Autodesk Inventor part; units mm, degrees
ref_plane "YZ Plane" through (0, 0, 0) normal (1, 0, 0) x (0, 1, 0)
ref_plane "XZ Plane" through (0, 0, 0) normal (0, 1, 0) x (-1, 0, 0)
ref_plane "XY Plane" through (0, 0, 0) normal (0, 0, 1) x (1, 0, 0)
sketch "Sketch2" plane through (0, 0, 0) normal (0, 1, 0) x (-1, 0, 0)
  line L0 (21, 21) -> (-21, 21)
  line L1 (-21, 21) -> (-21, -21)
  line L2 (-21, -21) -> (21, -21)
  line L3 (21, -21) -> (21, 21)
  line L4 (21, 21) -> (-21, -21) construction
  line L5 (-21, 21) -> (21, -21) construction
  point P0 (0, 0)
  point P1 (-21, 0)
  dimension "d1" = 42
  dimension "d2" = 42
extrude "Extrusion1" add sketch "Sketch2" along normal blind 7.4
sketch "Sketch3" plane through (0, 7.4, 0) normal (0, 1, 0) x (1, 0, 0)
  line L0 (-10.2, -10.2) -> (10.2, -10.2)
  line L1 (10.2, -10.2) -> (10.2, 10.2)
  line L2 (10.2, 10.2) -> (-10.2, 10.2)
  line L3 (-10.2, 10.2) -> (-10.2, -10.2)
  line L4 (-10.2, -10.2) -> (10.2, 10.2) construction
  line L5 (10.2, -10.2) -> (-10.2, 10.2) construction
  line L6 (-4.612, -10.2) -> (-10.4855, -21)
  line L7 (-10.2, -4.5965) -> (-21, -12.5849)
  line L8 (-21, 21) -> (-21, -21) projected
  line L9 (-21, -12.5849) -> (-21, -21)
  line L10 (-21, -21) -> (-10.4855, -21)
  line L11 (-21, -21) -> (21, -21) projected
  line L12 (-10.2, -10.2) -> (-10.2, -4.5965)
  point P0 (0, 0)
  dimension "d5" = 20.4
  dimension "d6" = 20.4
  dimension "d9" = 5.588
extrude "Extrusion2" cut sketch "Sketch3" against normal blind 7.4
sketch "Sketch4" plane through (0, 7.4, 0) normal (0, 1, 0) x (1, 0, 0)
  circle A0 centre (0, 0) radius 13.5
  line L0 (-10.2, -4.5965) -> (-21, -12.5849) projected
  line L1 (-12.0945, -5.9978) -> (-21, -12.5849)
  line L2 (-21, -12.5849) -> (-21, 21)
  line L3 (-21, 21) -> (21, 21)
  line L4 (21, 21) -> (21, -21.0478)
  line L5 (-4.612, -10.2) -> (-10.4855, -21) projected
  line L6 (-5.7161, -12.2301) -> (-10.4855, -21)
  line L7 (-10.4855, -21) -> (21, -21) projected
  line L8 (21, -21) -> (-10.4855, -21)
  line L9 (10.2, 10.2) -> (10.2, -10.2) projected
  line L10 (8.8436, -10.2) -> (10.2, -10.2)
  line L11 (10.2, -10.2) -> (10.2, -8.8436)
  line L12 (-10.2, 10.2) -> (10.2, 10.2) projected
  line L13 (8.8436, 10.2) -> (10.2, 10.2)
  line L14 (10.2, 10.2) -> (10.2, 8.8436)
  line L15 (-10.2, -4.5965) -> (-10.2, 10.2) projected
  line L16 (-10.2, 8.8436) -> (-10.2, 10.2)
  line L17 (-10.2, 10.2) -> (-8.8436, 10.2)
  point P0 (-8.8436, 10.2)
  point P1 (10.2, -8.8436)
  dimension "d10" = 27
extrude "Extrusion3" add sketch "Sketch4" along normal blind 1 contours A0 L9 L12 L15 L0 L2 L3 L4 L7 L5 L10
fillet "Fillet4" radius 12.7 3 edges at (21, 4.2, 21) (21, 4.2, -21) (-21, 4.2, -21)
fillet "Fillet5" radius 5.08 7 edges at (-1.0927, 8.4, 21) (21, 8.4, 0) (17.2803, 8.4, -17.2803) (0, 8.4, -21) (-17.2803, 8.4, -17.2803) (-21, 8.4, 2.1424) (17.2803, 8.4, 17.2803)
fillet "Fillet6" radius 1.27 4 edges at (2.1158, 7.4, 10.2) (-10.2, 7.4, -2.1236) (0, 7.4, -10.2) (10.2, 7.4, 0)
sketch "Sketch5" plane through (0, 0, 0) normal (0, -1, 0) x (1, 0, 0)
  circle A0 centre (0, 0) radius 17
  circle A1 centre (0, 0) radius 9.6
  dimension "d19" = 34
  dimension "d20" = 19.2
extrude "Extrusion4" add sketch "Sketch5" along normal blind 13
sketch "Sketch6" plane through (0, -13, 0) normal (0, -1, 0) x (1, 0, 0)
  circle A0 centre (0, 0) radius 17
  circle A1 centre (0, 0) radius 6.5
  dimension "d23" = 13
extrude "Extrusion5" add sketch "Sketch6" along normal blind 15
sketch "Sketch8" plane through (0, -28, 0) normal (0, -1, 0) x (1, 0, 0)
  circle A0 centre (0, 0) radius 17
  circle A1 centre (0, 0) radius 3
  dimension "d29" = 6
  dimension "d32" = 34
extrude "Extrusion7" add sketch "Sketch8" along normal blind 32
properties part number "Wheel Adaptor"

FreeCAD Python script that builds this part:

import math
import FreeCAD as App
import Part
import Sketcher
from FreeCAD import Vector
Q = App.Units.Quantity


def edges_at(feature, points):
    """Names of the edges that pass closest to the given points."""
    edges = feature.Shape.Edges
    near = lambda p: min(range(len(edges)), key=lambda i: edges[i].distToShape(Part.Vertex(*p))[0])
    return sorted({f"Edge{near(p) + 1}" for p in points})

doc = App.newDocument("Part")
params = doc.addObject("Spreadsheet::Sheet", "Params")
for row, (alias, value) in enumerate([
    ("sketch1_width", "42 mm"),
    ("pad1_length", "7.4 mm"),
    ("sketch2_width", "20.4 mm"),
    ("pocket1_length", "7.4 mm"),
    ("sketch3_radius", "13.5 mm"),
    ("sketch3_width", "42 mm"),
    ("pad2_length", "1 mm"),
    ("fillet_radius", "12.7 mm"),
    ("fillet2_radius", "5.08 mm"),
    ("fillet3_radius", "1.27 mm"),
    ("sketch4_diameter", "34 mm"),
    ("sketch4_diameter2", "19.2 mm"),
    ("pad3_length", "13 mm"),
    ("sketch5_diameter", "13 mm"),
    ("sketch5_diameter2", "34 mm"),
    ("pad4_length", "15 mm"),
    ("sketch6_diameter", "34 mm"),
    ("sketch6_diameter2", "6 mm"),
    ("pad5_length", "32 mm"),
], start=1):
    params.set(f"A{row}", alias)
    params.set(f"B{row}", "=" + value)
    params.setAlias(f"B{row}", alias)

body = doc.addObject("PartDesign::Body", "Body")

# Sketch on XZ plane
sketch1 = doc.addObject("Sketcher::SketchObject", "Sketch")
body.addObject(sketch1)
sketch1.AttachmentSupport = (doc.XZ_Plane, [""])
sketch1.MapMode = "FlatFace"
sketch1.addGeometry([
    Part.LineSegment(Vector(-21, -21, 0), Vector(-21, 21, 0)),
    Part.LineSegment(Vector(-21, 21, 0), Vector(21, 21, 0)),
    Part.LineSegment(Vector(21, 21, 0), Vector(21, -21, 0)),
    Part.LineSegment(Vector(21, -21, 0), Vector(-21, -21, 0)),
], False)
sketch1.addConstraint([
    Sketcher.Constraint("Coincident", 0, 2, 1, 1),
    Sketcher.Constraint("Coincident", 1, 2, 2, 1),
    Sketcher.Constraint("Coincident", 2, 2, 3, 1),
    Sketcher.Constraint("Coincident", 3, 2, 0, 1),
    Sketcher.Constraint("Vertical", 0),
    Sketcher.Constraint("Horizontal", 1),
    Sketcher.Constraint("Vertical", 2),
    Sketcher.Constraint("Horizontal", 3),
    Sketcher.Constraint("Symmetric", 0, 2, 2, 2, -1, 1),
    Sketcher.Constraint("Equal", 3, 0),
    Sketcher.Constraint("DistanceX", 1, 1, 1, 2, 42.0),
])
sketch1.setExpression("Constraints[10]", "Params.sketch1_width")
pad1 = doc.addObject("PartDesign::Pad", "Pad")
body.addObject(pad1)
pad1.Profile = sketch1
pad1.setExpression("Length", "Params.pad1_length")
pad1.Reversed = True

# Sketch on XZ plane
sketch2 = doc.addObject("Sketcher::SketchObject", "Sketch001")
body.addObject(sketch2)
sketch2.AttachmentSupport = (doc.XZ_Plane, [""])
sketch2.MapMode = "FlatFace"
sketch2.AttachmentOffset = App.Placement(Vector(0, 0, -7.4), App.Rotation())
sketch2.addGeometry([
    Part.LineSegment(Vector(-10.2, -10.2, 0), Vector(-10.2, 4.5965, 0)),  # 0
    Part.LineSegment(Vector(-10.2, 4.5965, 0), Vector(-21, 12.5849, 0)),  # 1
    Part.LineSegment(Vector(-21, 12.5849, 0), Vector(-21, 21, 0)),  # 2
    Part.LineSegment(Vector(-21, 21, 0), Vector(-10.4855, 21, 0)),  # 3
    Part.LineSegment(Vector(-10.4855, 21, 0), Vector(-4.612, 10.2, 0)),  # 4
    Part.LineSegment(Vector(-4.612, 10.2, 0), Vector(10.2, 10.2, 0)),  # 5
    Part.LineSegment(Vector(10.2, 10.2, 0), Vector(10.2, -10.2, 0)),  # 6
    Part.LineSegment(Vector(10.2, -10.2, 0), Vector(-10.2, -10.2, 0)),  # 7
], False)
sketch2.addConstraint([
    Sketcher.Constraint("Coincident", 0, 2, 1, 1),
    Sketcher.Constraint("Coincident", 1, 2, 2, 1),
    Sketcher.Constraint("Coincident", 2, 2, 3, 1),
    Sketcher.Constraint("Coincident", 3, 2, 4, 1),
    Sketcher.Constraint("Coincident", 4, 2, 5, 1),
    Sketcher.Constraint("Coincident", 5, 2, 6, 1),
    Sketcher.Constraint("Coincident", 6, 2, 7, 1),
    Sketcher.Constraint("Coincident", 7, 2, 0, 1),
    Sketcher.Constraint("Vertical", 0),
    Sketcher.Constraint("Vertical", 2),
    Sketcher.Constraint("Horizontal", 3),
    Sketcher.Constraint("Horizontal", 5),
    Sketcher.Constraint("Vertical", 6),
    Sketcher.Constraint("Horizontal", 7),
    Sketcher.Constraint("Symmetric", 5, 2, 7, 2, -1, 1),
    Sketcher.Constraint("Equal", 7, 6),
    Sketcher.Constraint("DistanceX", 7, 2, 7, 1, 20.4),
    Sketcher.Constraint("DistanceX", 1, 2, -1, 1, 21.0),
    Sketcher.Constraint("DistanceY", -1, 1, 2, 2, 21.0),
    Sketcher.Constraint("DistanceX", 0, 2, 4, 2, 5.588),
    Sketcher.Constraint("Angle", 1, Q("143.511 deg")),
    Sketcher.Constraint("Angle", 4, Q("-61.4608 deg")),
    Sketcher.Constraint("DistanceY", 2, 1, 2, 2, 8.415),
])
sketch2.setExpression("Constraints[16]", "Params.sketch2_width")
pocket1 = doc.addObject("PartDesign::Pocket", "Pocket")
body.addObject(pocket1)
pocket1.Profile = sketch2
pocket1.setExpression("Length", "Params.pocket1_length")
pocket1.Reversed = True

# Sketch on XZ plane
sketch3 = doc.addObject("Sketcher::SketchObject", "Sketch002")
body.addObject(sketch3)
sketch3.AttachmentSupport = (doc.XZ_Plane, [""])
sketch3.MapMode = "FlatFace"
sketch3.AttachmentOffset = App.Placement(Vector(0, 0, -7.4), App.Rotation())
sketch3.addGeometry([
    Part.ArcOfCircle(Part.Circle(Vector(0, 0, 0), Vector(0, 0, 1), 13.5), math.radians(-40.925929), math.radians(40.925929)),  # 0
    Part.LineSegment(Vector(10.2, 8.8436, 0), Vector(10.2, 10.2, 0)),  # 1
    Part.LineSegment(Vector(10.2, 10.2, 0), Vector(8.8436, 10.2, 0)),  # 2
    Part.ArcOfCircle(Part.Circle(Vector(0, 0, 0), Vector(0, 0, 1), 13.5), math.radians(49.074071), math.radians(115.05043)),  # 3
    Part.LineSegment(Vector(-5.716065, 12.230119, 0), Vector(-10.4855, 21, 0)),  # 4
    Part.LineSegment(Vector(-10.4855, 21, 0), Vector(21, 21, 0)),  # 5
    Part.LineSegment(Vector(21, 21, 0), Vector(21, -21, 0)),  # 6
    Part.LineSegment(Vector(21, -21, 0), Vector(-21, -21, 0)),  # 7
    Part.LineSegment(Vector(-21, -21, 0), Vector(-21, 12.5849, 0)),  # 8
    Part.LineSegment(Vector(-21, 12.5849, 0), Vector(-12.094501, 5.997799, 0)),  # 9
    Part.ArcOfCircle(Part.Circle(Vector(0, 0, 0), Vector(0, 0, 1), 13.5), math.radians(153.622664), math.radians(220.925929)),  # 10
    Part.LineSegment(Vector(-10.2, -8.8436, 0), Vector(-10.2, -10.2, 0)),  # 11
    Part.LineSegment(Vector(-10.2, -10.2, 0), Vector(-8.8436, -10.2, 0)),  # 12
    Part.ArcOfCircle(Part.Circle(Vector(0, 0, 0), Vector(0, 0, 1), 13.5), math.radians(-130.925929), math.radians(-49.074071)),  # 13
    Part.LineSegment(Vector(8.8436, -10.2, 0), Vector(10.2, -10.2, 0)),  # 14
    Part.LineSegment(Vector(10.2, -10.2, 0), Vector(10.2, -8.8436, 0)),  # 15
], False)
sketch3.addConstraint([
    Sketcher.Constraint("Coincident", 0, 2, 1, 1),
    Sketcher.Constraint("Coincident", 1, 2, 2, 1),
    Sketcher.Constraint("Coincident", 2, 2, 3, 1),
    Sketcher.Constraint("Coincident", 3, 2, 4, 1),
    Sketcher.Constraint("Coincident", 4, 2, 5, 1),
    Sketcher.Constraint("Coincident", 5, 2, 6, 1),
    Sketcher.Constraint("Coincident", 6, 2, 7, 1),
    Sketcher.Constraint("Coincident", 7, 2, 8, 1),
    Sketcher.Constraint("Coincident", 8, 2, 9, 1),
    Sketcher.Constraint("Coincident", 9, 2, 10, 1),
    Sketcher.Constraint("Coincident", 10, 2, 11, 1),
    Sketcher.Constraint("Coincident", 11, 2, 12, 1),
    Sketcher.Constraint("Coincident", 12, 2, 13, 1),
    Sketcher.Constraint("Coincident", 13, 2, 14, 1),
    Sketcher.Constraint("Coincident", 14, 2, 15, 1),
    Sketcher.Constraint("Coincident", 15, 2, 0, 1),
    Sketcher.Constraint("Vertical", 1),
    Sketcher.Constraint("Horizontal", 2),
    Sketcher.Constraint("Horizontal", 5),
    Sketcher.Constraint("Vertical", 6),
    Sketcher.Constraint("Horizontal", 7),
    Sketcher.Constraint("Vertical", 8),
    Sketcher.Constraint("Vertical", 11),
    Sketcher.Constraint("Horizontal", 12),
    Sketcher.Constraint("Horizontal", 14),
    Sketcher.Constraint("Vertical", 15),
    Sketcher.Constraint("Coincident", 0, 3, -1, 1),
    Sketcher.Constraint("Coincident", 3, 3, -1, 1),
    Sketcher.Constraint("Coincident", 10, 3, -1, 1),
    Sketcher.Constraint("Coincident", 13, 3, -1, 1),
    Sketcher.Constraint("Equal", 0, 3),
    Sketcher.Constraint("Equal", 3, 10),
    Sketcher.Constraint("Equal", 10, 13),
    Sketcher.Constraint("Symmetric", 5, 2, 7, 2, -1, 1),
    Sketcher.Constraint("Symmetric", 1, 2, 11, 2, -1, 1),
    Sketcher.Constraint("Symmetric", 11, 2, 14, 2, -2),
    Sketcher.Constraint("Equal", 14, 1),
    Sketcher.Constraint("Equal", 7, 6),
    Sketcher.Constraint("Radius", 0, 13.5),
    Sketcher.Constraint("DistanceX", 7, 2, 7, 1, 42.0),
    Sketcher.Constraint("DistanceX", -1, 1, 0, 2, 10.2),
    Sketcher.Constraint("Angle", 4, Q("118.5392 deg")),
    Sketcher.Constraint("Angle", 9, Q("-36.489 deg")),
    Sketcher.Constraint("DistanceY", 8, 1, 8, 2, 33.585),
    Sketcher.Constraint("Distance", 4, 9.983),
])
sketch3.setExpression("Constraints[38]", "Params.sketch3_radius")
sketch3.setExpression("Constraints[39]", "Params.sketch3_width")
pad2 = doc.addObject("PartDesign::Pad", "Pad001")
body.addObject(pad2)
pad2.Profile = sketch3
pad2.setExpression("Length", "Params.pad2_length")
pad2.Reversed = True
doc.recompute()

fillet = doc.addObject("PartDesign::Fillet", "Fillet")
body.addObject(fillet)
fillet.Base = (pad2, edges_at(pad2, [(21, 4.2, 21), (21, 4.2, -21), (-21, 4.2, -21)]))
fillet.setExpression("Radius", "Params.fillet_radius")
doc.recompute()

fillet2 = doc.addObject("PartDesign::Fillet", "Fillet001")
body.addObject(fillet2)
fillet2.Base = (fillet, edges_at(fillet, [
    (-1.093, 8.4, 21),
    (21, 8.4, 0),
    (17.28, 8.4, -17.28),
    (0, 8.4, -21),
    (-17.28, 8.4, -17.28),
    (-21, 8.4, 2.142),
    (17.28, 8.4, 17.28),
]))
fillet2.setExpression("Radius", "Params.fillet2_radius")
doc.recompute()

fillet3 = doc.addObject("PartDesign::Fillet", "Fillet002")
body.addObject(fillet3)
fillet3.Base = (fillet2, edges_at(fillet2, [
    (2.116, 7.4, 10.2),
    (-10.2, 7.4, -2.124),
    (0, 7.4, -10.2),
    (10.2, 7.4, 0),
]))
fillet3.setExpression("Radius", "Params.fillet3_radius")

# Sketch on XZ plane
sketch4 = doc.addObject("Sketcher::SketchObject", "Sketch003")
body.addObject(sketch4)
sketch4.AttachmentSupport = (doc.XZ_Plane, [""])
sketch4.MapMode = "FlatFace"
sketch4.addGeometry([
    Part.Circle(Vector(0, 0, 0), Vector(0, 0, 1), 17),
    Part.Circle(Vector(0, 0, 0), Vector(0, 0, 1), 9.6),
], False)
sketch4.addConstraint([
    Sketcher.Constraint("Coincident", 0, 3, -1, 1),
    Sketcher.Constraint("Coincident", 1, 3, -1, 1),
    Sketcher.Constraint("Diameter", 0, 34.0),
    Sketcher.Constraint("Diameter", 1, 19.2),
])
sketch4.setExpression("Constraints[2]", "Params.sketch4_diameter")
sketch4.setExpression("Constraints[3]", "Params.sketch4_diameter2")
pad3 = doc.addObject("PartDesign::Pad", "Pad002")
body.addObject(pad3)
pad3.Profile = sketch4
pad3.setExpression("Length", "Params.pad3_length")

# Sketch on XZ plane
sketch5 = doc.addObject("Sketcher::SketchObject", "Sketch004")
body.addObject(sketch5)
sketch5.AttachmentSupport = (doc.XZ_Plane, [""])
sketch5.MapMode = "FlatFace"
sketch5.AttachmentOffset = App.Placement(Vector(0, 0, 13), App.Rotation())
sketch5.addGeometry([
    Part.Circle(Vector(0, 0, 0), Vector(0, 0, 1), 17),
    Part.Circle(Vector(0, 0, 0), Vector(0, 0, 1), 6.5),
], False)
sketch5.addConstraint([
    Sketcher.Constraint("Coincident", 0, 3, -1, 1),
    Sketcher.Constraint("Coincident", 1, 3, -1, 1),
    Sketcher.Constraint("Diameter", 1, 13.0),
    Sketcher.Constraint("Diameter", 0, 34.0),
])
sketch5.setExpression("Constraints[2]", "Params.sketch5_diameter")
sketch5.setExpression("Constraints[3]", "Params.sketch5_diameter2")
pad4 = doc.addObject("PartDesign::Pad", "Pad003")
body.addObject(pad4)
pad4.Profile = sketch5
pad4.setExpression("Length", "Params.pad4_length")

# Sketch on XZ plane
sketch6 = doc.addObject("Sketcher::SketchObject", "Sketch005")
body.addObject(sketch6)
sketch6.AttachmentSupport = (doc.XZ_Plane, [""])
sketch6.MapMode = "FlatFace"
sketch6.AttachmentOffset = App.Placement(Vector(0, 0, 28), App.Rotation())
sketch6.addGeometry([
    Part.Circle(Vector(0, 0, 0), Vector(0, 0, 1), 17),
    Part.Circle(Vector(0, 0, 0), Vector(0, 0, 1), 3),
], False)
sketch6.addConstraint([
    Sketcher.Constraint("Coincident", 0, 3, -1, 1),
    Sketcher.Constraint("Coincident", 1, 3, -1, 1),
    Sketcher.Constraint("Diameter", 0, 34.0),
    Sketcher.Constraint("Diameter", 1, 6.0),
])
sketch6.setExpression("Constraints[2]", "Params.sketch6_diameter")
sketch6.setExpression("Constraints[3]", "Params.sketch6_diameter2")
pad5 = doc.addObject("PartDesign::Pad", "Pad004")
body.addObject(pad5)
pad5.Profile = sketch6
pad5.setExpression("Length", "Params.pad5_length")

doc.recompute()
